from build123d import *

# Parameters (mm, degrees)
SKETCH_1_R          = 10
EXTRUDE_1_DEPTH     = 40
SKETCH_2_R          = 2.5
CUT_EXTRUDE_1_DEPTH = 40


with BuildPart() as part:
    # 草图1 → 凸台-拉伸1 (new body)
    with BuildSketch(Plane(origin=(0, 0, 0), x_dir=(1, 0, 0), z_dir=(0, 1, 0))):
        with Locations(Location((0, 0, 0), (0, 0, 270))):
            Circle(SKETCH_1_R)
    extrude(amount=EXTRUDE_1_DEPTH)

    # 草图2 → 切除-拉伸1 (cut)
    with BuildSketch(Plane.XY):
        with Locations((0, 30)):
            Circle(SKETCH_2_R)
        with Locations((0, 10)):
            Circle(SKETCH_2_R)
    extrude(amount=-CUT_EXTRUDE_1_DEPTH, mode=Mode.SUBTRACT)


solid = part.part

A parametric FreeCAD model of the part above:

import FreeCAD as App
import Part
import Sketcher
from FreeCAD import Vector

doc = App.newDocument("Part")
body = doc.addObject("PartDesign::Body", "Body")

# Sketch on XZ plane
sketch1 = body.newObject("Sketcher::SketchObject", "Sketch")
sketch1.AttachmentSupport = (doc.getObject("XZ_Plane"), [""])
sketch1.MapMode = "FlatFace"
sketch1.addGeometry(Part.Circle(Vector(0, 0, 0), Vector(0, 0, 1), 10), False)
sketch1.addConstraint([
    Sketcher.Constraint("Coincident", 0, 3, -1, 1),
    Sketcher.Constraint("Diameter", 0, 20.0),
])
pad1 = body.newObject("PartDesign::Pad", "Pad")
pad1.Profile = sketch1
pad1.Length = 40
pad1.Reversed = True

# Sketch on XY plane
sketch2 = body.newObject("Sketcher::SketchObject", "Sketch001")
sketch2.AttachmentSupport = (doc.getObject("XY_Plane"), [""])
sketch2.MapMode = "FlatFace"
sketch2.addGeometry([
    Part.Circle(Vector(0, 30, 0), Vector(0, 0, 1), 2.5),
    Part.Circle(Vector(0, 10, 0), Vector(0, 0, 1), 2.5),
], False)
sketch2.addConstraint([
    Sketcher.Constraint("Equal", 0, 1),
    Sketcher.Constraint("PointOnObject", 0, 3, -2),
    Sketcher.Constraint("PointOnObject", 1, 3, -2),
    Sketcher.Constraint("Diameter", 0, 5.0),
    Sketcher.Constraint("DistanceY", -1, 1, 0, 3, 30.0),
    Sketcher.Constraint("DistanceY", -1, 1, 1, 3, 10.0),
])
pocket1 = body.newObject("PartDesign::Pocket", "Pocket")
pocket1.Profile = sketch2
pocket1.Length = 40

doc.recompute()
